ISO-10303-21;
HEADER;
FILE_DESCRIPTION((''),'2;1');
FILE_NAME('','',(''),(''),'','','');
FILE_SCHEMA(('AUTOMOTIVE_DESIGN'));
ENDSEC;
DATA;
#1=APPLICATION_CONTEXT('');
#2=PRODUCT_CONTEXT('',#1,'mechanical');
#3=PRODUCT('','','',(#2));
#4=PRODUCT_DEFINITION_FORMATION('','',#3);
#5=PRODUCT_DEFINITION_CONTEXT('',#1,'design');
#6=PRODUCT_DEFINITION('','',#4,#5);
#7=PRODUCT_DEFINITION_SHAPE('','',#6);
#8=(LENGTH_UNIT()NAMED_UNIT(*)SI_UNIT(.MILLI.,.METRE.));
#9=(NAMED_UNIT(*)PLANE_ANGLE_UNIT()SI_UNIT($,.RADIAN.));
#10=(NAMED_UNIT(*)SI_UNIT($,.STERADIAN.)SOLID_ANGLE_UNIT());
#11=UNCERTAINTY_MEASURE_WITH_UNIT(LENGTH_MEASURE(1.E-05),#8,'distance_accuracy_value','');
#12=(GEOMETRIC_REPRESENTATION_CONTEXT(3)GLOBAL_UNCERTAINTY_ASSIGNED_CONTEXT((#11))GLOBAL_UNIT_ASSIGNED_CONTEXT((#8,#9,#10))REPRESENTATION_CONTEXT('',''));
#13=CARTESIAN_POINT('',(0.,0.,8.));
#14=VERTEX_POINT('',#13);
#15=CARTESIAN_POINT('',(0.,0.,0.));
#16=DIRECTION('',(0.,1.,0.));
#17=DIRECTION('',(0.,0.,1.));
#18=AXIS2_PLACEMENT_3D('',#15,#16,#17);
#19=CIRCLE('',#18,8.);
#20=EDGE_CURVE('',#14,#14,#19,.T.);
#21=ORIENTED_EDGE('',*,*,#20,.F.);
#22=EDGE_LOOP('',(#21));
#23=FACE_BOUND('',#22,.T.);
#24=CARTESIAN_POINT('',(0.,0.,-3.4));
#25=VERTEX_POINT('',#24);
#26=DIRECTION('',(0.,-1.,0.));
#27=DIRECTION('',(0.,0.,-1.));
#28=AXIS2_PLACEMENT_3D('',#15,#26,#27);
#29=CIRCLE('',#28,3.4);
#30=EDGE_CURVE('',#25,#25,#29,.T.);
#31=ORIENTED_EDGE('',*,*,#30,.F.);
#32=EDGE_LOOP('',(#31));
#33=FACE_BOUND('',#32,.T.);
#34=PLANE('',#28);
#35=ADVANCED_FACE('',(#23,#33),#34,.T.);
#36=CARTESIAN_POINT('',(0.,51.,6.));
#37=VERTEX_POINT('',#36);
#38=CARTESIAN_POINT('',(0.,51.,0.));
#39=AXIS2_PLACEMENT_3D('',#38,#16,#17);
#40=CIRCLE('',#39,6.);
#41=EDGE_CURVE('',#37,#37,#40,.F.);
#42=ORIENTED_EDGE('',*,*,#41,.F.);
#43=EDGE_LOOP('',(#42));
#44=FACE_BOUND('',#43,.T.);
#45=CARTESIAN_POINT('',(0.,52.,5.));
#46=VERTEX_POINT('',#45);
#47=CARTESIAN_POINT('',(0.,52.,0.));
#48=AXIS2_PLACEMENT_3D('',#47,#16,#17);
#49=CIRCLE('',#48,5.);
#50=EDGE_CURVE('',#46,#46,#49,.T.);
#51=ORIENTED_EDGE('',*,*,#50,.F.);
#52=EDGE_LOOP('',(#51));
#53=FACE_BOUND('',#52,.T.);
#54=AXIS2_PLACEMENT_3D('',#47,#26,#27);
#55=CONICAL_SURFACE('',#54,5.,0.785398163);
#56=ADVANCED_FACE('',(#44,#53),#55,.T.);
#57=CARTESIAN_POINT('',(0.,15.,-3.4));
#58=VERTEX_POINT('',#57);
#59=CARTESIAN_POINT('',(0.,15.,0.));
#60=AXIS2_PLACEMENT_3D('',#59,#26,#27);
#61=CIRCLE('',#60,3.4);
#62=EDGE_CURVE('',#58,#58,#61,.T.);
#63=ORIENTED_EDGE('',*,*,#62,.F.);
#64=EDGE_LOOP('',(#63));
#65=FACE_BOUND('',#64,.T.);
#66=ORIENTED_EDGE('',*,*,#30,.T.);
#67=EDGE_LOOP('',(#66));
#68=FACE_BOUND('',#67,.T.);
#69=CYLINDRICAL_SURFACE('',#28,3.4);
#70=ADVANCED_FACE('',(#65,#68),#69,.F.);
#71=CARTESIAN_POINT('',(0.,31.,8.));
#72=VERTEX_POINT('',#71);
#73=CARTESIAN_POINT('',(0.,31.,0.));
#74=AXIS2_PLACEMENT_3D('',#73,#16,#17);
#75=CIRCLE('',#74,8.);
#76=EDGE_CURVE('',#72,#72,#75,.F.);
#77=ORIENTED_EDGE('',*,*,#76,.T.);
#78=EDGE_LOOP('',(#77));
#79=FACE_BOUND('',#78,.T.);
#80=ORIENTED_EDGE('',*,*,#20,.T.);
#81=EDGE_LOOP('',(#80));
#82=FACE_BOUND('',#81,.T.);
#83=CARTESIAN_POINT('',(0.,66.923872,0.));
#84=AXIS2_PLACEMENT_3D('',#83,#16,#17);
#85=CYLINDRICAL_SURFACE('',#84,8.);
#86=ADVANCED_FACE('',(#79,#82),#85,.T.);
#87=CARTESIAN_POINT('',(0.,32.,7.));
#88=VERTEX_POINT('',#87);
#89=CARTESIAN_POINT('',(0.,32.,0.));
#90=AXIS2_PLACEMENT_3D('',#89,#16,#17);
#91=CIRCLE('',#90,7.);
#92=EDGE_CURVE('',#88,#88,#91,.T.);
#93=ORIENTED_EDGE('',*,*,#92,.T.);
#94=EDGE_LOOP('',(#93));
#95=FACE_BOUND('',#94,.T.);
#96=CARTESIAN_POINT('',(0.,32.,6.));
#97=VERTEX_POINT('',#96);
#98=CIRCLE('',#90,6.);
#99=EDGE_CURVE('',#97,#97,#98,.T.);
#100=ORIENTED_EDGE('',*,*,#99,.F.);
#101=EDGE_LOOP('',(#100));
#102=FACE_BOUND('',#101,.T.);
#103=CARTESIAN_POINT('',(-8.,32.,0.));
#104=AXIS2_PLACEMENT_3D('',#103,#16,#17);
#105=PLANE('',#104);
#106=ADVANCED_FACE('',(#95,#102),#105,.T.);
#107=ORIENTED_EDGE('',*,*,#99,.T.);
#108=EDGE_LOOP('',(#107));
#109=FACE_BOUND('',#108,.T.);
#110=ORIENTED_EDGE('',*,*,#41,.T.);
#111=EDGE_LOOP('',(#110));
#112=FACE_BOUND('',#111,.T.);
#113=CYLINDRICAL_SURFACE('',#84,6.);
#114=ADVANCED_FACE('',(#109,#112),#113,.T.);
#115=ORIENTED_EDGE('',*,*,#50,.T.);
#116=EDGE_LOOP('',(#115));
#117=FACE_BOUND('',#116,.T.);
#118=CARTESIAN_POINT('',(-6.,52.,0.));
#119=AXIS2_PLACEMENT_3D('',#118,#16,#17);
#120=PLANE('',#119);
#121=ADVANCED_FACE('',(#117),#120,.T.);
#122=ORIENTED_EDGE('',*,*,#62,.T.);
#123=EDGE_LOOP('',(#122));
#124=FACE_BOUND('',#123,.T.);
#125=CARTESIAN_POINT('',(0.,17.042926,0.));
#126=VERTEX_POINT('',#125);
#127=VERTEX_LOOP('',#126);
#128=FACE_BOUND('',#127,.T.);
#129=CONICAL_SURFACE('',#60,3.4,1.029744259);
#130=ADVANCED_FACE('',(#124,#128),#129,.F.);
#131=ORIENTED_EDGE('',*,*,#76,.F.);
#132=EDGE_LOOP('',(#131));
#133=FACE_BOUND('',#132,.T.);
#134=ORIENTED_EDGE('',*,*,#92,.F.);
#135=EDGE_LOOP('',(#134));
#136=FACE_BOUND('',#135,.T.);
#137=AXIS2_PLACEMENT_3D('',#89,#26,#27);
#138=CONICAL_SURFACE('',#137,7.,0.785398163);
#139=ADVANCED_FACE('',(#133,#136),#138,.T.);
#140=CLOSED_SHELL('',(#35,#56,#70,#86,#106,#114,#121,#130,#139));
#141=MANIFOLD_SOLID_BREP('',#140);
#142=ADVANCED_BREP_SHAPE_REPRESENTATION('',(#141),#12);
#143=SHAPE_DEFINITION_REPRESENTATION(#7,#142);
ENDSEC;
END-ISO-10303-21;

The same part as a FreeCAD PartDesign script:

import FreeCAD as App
import Part
import Sketcher

V = App.Vector


def edges_at(feature, points):
    """Names of the edges that pass closest to the given points."""
    edges = feature.Shape.Edges
    near = lambda p: min(range(len(edges)), key=lambda i: edges[i].distToShape(Part.Vertex(*p))[0])
    return sorted({f"Edge{near(p) + 1}" for p in points})


def add_polygon(sketch, points):
    """Adds a closed chain of lines whose ends are joined by coincident constraints."""
    first, n = sketch.GeometryCount, len(points)
    for a, b in zip(points, points[1:] + points[:1]):
        sketch.addGeometry(Part.LineSegment(App.Vector(*a, 0), App.Vector(*b, 0)), False)
    for i in range(n):
        sketch.addConstraint(Sketcher.Constraint("Coincident", first + i, 2, first + (i + 1) % n, 1))

doc = App.newDocument("Part")
params = doc.addObject("Spreadsheet::Sheet", "Params")
for row, (alias, value) in enumerate([
    ("sketch1_width", "8 mm"),
    ("sketch1_width2", "6 mm"),
    ("sketch1_height", "52 mm"),
    ("sketch1_height2", "20 mm"),
    ("revolution_angle", "360 deg"),
    ("sketch2_diameter", "6.8 mm"),
    ("hole_diameter", "6.8 mm"),
    ("hole_depth", "15 mm"),
    ("chamfer_size", "1 mm"),
    ("chamfer2_size", "1 mm"),
], start=1):
    params.set(f"A{row}", alias)
    params.set(f"B{row}", "=" + value)
    params.setAlias(f"B{row}", alias)

body = doc.addObject("PartDesign::Body", "Body")

# Sketch on XY plane
sketch1 = body.newObject("Sketcher::SketchObject", "Sketch")
sketch1.AttachmentSupport = (doc.getObject("XY_Plane"), [""])
sketch1.MapMode = "FlatFace"
add_polygon(sketch1, [(-8, 0), (0, 0), (0, 52), (-6, 52), (-6, 32), (-8, 32)])  # lines 0-5
sketch1.addConstraint([
    Sketcher.Constraint("Horizontal", 0),
    Sketcher.Constraint("Vertical", 1),
    Sketcher.Constraint("Horizontal", 2),
    Sketcher.Constraint("Vertical", 3),
    Sketcher.Constraint("Horizontal", 4),
    Sketcher.Constraint("Vertical", 5),
    Sketcher.Constraint("Coincident", 0, 2, -1, 1),
    Sketcher.Constraint("DistanceX", 0, 1, 0, 2, 8.0),
    Sketcher.Constraint("DistanceX", 2, 2, 2, 1, 6.0),
    Sketcher.Constraint("DistanceY", 1, 1, 1, 2, 52.0),
    Sketcher.Constraint("DistanceY", 3, 2, 3, 1, 20.0),
])
sketch1.setExpression("Constraints[13]", "Params.sketch1_width")
sketch1.setExpression("Constraints[14]", "Params.sketch1_width2")
sketch1.setExpression("Constraints[15]", "Params.sketch1_height")
sketch1.setExpression("Constraints[16]", "Params.sketch1_height2")
revolution = body.newObject("PartDesign::Revolution", "Revolution")
revolution.Profile = sketch1
revolution.ReferenceAxis = (sketch1, ["V_Axis"])
revolution.setExpression("Angle", "Params.revolution_angle")

# Sketch on XZ plane
sketch2 = body.newObject("Sketcher::SketchObject", "Sketch001")
sketch2.AttachmentSupport = (doc.getObject("XZ_Plane"), [""])
sketch2.MapMode = "FlatFace"
sketch2.addGeometry(Part.Circle(V(0, 0, 0), V(0, 0, 1), 3.4), False)
sketch2.addConstraint([
    Sketcher.Constraint("Coincident", 0, 3, -1, 1),
    Sketcher.Constraint("Diameter", 0, 6.8),
])
sketch2.setExpression("Constraints[1]", "Params.sketch2_diameter")
doc.recompute()
hole = body.newObject("PartDesign::Hole", "Hole")
hole.Profile = sketch2
hole.ThreadType = "None"
hole.setExpression("Diameter", "Params.hole_diameter")
hole.DepthType = "Dimension"
hole.setExpression("Depth", "Params.hole_depth")
hole.DrillPoint = "Angled"
hole.DrillPointAngle = 118
doc.recompute()

chamfer = body.newObject("PartDesign::Chamfer", "Chamfer")
chamfer.Base = (hole, edges_at(hole, [(6, 52, 0)]))
chamfer.setExpression("Size", "Params.chamfer_size")
doc.recompute()

chamfer2 = body.newObject("PartDesign::Chamfer", "Chamfer001")
chamfer2.Base = (chamfer, edges_at(chamfer, [(8, 32, 0)]))
chamfer2.setExpression("Size", "Params.chamfer2_size")

doc.recompute()
